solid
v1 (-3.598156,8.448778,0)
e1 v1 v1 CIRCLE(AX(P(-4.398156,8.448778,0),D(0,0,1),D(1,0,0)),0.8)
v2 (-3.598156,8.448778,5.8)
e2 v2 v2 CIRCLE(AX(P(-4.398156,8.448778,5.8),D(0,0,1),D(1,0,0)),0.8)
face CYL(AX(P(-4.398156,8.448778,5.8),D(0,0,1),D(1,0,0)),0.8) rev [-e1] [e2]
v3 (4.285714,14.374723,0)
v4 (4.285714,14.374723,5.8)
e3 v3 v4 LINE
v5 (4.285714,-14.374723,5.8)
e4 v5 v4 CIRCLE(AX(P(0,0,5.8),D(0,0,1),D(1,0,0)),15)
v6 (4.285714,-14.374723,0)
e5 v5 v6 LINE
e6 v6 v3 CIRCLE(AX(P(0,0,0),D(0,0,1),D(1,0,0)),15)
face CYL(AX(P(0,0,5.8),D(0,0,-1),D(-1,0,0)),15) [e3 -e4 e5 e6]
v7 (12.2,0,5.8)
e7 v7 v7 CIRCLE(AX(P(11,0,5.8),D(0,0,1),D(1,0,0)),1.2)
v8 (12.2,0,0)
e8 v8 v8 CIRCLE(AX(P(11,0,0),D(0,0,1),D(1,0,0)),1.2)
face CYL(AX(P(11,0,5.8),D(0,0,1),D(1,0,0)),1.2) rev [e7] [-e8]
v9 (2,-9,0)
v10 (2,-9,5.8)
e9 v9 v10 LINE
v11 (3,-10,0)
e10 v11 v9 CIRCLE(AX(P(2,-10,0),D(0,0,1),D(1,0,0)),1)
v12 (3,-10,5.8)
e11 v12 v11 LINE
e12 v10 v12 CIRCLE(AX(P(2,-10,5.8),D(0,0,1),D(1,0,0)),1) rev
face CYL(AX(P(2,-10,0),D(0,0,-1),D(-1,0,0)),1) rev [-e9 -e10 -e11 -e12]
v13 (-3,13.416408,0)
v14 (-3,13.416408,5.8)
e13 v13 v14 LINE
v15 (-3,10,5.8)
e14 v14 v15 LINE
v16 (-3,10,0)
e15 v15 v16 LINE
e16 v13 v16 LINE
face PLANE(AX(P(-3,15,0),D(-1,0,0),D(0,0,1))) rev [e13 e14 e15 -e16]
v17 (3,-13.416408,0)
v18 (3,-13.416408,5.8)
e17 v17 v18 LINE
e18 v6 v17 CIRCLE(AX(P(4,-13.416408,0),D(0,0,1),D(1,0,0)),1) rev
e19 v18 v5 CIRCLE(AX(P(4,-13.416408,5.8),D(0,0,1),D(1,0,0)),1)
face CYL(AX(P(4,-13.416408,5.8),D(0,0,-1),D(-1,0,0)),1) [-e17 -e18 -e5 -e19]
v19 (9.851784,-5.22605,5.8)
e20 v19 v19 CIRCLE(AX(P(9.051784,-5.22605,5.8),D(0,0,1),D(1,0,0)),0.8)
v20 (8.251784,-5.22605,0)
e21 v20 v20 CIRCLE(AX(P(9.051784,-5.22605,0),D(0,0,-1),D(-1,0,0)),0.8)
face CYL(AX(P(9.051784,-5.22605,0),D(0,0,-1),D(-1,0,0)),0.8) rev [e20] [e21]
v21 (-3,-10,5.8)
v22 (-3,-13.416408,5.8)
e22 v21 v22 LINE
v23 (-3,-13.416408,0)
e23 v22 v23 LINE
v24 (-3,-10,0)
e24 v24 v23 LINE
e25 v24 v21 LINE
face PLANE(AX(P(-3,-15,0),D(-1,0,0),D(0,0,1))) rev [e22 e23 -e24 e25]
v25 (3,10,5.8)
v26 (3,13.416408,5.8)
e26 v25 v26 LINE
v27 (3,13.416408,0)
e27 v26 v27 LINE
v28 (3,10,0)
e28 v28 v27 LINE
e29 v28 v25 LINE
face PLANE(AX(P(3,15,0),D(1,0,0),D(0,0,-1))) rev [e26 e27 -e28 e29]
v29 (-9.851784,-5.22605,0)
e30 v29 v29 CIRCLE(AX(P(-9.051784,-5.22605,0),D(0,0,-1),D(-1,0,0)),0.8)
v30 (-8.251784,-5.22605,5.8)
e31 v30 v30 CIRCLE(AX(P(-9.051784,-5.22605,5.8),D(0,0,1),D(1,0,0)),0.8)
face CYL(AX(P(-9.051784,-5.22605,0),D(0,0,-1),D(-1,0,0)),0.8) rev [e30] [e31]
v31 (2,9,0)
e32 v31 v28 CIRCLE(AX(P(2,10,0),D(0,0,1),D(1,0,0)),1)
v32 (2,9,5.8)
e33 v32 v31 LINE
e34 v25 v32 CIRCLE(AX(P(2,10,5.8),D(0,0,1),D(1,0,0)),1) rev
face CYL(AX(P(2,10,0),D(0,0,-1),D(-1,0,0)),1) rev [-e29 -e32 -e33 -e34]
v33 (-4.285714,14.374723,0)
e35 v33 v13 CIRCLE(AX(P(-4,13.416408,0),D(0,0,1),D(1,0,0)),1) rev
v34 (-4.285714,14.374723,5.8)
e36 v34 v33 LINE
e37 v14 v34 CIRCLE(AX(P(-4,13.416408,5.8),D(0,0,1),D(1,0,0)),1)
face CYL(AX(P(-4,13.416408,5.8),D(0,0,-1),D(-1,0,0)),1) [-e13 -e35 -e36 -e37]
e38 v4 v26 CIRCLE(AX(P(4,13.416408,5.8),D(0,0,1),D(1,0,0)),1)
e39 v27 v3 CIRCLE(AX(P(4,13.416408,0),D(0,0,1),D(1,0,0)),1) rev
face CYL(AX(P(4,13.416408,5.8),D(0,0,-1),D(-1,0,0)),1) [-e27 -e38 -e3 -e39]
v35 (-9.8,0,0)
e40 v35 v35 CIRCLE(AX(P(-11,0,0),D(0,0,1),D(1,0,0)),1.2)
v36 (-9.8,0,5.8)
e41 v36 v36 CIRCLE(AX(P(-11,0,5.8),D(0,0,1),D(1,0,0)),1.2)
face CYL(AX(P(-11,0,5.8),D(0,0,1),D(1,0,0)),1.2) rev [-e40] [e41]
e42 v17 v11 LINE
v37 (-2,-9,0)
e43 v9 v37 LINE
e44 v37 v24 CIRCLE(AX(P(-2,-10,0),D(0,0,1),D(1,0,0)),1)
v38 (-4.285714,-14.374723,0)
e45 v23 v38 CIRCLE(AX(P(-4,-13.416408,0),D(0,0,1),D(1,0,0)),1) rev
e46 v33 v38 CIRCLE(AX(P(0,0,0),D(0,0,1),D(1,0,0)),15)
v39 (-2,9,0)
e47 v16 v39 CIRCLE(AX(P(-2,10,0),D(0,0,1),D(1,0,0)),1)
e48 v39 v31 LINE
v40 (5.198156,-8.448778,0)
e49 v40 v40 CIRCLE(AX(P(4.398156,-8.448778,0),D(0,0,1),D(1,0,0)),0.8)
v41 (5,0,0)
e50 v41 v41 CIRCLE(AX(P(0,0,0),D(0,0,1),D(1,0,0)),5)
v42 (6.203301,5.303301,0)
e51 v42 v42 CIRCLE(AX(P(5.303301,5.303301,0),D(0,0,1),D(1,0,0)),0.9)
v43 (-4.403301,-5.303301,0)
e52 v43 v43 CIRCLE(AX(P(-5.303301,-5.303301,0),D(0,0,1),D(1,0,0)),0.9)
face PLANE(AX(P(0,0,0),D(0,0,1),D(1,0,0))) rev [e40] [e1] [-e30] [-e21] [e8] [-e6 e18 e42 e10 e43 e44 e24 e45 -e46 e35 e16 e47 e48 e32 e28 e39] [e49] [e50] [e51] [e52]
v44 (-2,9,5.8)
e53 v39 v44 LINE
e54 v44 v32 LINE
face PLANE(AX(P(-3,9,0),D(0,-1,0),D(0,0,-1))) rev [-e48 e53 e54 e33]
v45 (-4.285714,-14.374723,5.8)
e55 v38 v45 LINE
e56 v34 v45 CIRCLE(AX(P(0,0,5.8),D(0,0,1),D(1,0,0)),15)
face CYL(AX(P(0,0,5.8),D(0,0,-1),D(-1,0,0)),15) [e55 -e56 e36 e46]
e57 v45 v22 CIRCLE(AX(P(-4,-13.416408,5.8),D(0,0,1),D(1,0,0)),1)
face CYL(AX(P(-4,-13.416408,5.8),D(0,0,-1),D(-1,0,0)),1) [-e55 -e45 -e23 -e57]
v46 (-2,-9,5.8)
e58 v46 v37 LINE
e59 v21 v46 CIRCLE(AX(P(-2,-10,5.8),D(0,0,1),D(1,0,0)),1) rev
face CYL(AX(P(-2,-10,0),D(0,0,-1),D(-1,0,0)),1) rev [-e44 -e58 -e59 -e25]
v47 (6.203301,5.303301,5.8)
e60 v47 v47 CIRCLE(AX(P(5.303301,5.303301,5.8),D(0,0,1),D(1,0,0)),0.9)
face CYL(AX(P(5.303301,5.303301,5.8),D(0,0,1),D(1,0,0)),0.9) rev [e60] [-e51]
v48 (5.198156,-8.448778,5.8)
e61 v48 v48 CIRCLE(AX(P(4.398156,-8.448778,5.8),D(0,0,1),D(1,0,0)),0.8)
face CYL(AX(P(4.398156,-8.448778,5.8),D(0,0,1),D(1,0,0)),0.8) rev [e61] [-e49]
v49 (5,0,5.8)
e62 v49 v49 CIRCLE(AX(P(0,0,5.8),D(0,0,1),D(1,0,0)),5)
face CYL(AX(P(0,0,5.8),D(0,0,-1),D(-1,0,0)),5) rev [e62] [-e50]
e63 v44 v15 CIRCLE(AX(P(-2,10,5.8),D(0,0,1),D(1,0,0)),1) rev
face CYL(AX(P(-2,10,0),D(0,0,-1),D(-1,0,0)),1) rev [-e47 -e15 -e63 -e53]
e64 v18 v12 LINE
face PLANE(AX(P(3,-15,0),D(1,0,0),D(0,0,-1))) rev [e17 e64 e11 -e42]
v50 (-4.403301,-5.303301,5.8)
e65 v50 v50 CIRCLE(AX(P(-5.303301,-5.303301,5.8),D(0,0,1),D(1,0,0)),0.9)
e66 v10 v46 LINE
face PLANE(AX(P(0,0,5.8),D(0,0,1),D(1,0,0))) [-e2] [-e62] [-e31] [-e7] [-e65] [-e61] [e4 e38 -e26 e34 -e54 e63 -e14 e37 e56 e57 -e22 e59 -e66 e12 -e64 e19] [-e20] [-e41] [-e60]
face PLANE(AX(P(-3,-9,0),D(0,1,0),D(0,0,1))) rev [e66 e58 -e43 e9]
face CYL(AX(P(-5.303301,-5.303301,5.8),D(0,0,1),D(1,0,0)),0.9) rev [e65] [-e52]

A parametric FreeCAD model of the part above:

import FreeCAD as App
import Part
import Sketcher
Q = App.Units.Quantity


def edges_at(feature, points):
    """Names of the edges that pass closest to the given points."""
    edges = feature.Shape.Edges
    near = lambda p: min(range(len(edges)), key=lambda i: edges[i].distToShape(Part.Vertex(*p))[0])
    return sorted({f"Edge{near(p) + 1}" for p in points})


def add_polygon(sketch, points):
    """Adds a closed chain of lines whose ends are joined by coincident constraints."""
    first, n = sketch.GeometryCount, len(points)
    for a, b in zip(points, points[1:] + points[:1]):
        sketch.addGeometry(Part.LineSegment(App.Vector(*a, 0), App.Vector(*b, 0)), False)
    for i in range(n):
        sketch.addConstraint(Sketcher.Constraint("Coincident", first + i, 2, first + (i + 1) % n, 1))

doc = App.newDocument("Part")
body = doc.addObject("PartDesign::Body", "Body")

sketch1 = body.newObject("Sketcher::SketchObject", "Sketch")
sketch1.AttachmentSupport = (doc.getObject("XY_Plane"), [""])
sketch1.MapMode = "FlatFace"
sketch1.addGeometry(Part.Circle(App.Vector(0, 0, 0), App.Vector(0, 0, 1), 15), False)
sketch1.addGeometry(Part.Circle(App.Vector(0, 0, 0), App.Vector(0, 0, 1), 5), False)
sketch1.addConstraint(Sketcher.Constraint("Coincident", 0, 3, -1, 1))
sketch1.addConstraint(Sketcher.Constraint("Coincident", 1, 3, -1, 1))
sketch1.addConstraint(Sketcher.Constraint("Diameter", 0, Q("30 mm")))
sketch1.addConstraint(Sketcher.Constraint("Diameter", 1, Q("10 mm")))
pad1 = body.newObject("PartDesign::Pad", "Pad")
pad1.Profile = sketch1
pad1.Length = 5.8

sketch2 = body.newObject("Sketcher::SketchObject", "Sketch001")
sketch2.AttachmentSupport = (doc.getObject("XY_Plane"), [""])
sketch2.MapMode = "FlatFace"
sketch2.AttachmentOffset = App.Placement(App.Vector(0, 0, 5.8), App.Rotation())
sketch2.addGeometry(Part.Circle(App.Vector(-11, 0, 0), App.Vector(0, 0, 1), 1.2), False)
sketch2.addGeometry(Part.Circle(App.Vector(11, 0, 0), App.Vector(0, 0, 1), 1.2), False)
sketch2.addConstraint(Sketcher.Constraint("Equal", 0, 1))
sketch2.addConstraint(Sketcher.Constraint("Symmetric", 0, 3, 1, 3, -1, 1))
sketch2.addConstraint(Sketcher.Constraint("PointOnObject", 0, 3, -1))
sketch2.addConstraint(Sketcher.Constraint("Diameter", 0, Q("2.4 mm")))
sketch2.addConstraint(Sketcher.Constraint("DistanceX", 0, 3, -1, 1, Q("11 mm")))
doc.recompute()
hole = body.newObject("PartDesign::Hole", "Hole")
hole.Profile = sketch2
hole.ThreadType = "None"
hole.Diameter = 2.4
hole.DepthType = "Dimension"
hole.Depth = 25.4
hole.DrillPoint = "Angled"
hole.DrillPointAngle = 118

sketch3 = body.newObject("Sketcher::SketchObject", "Sketch002")
sketch3.AttachmentSupport = (doc.getObject("XY_Plane"), [""])
sketch3.MapMode = "FlatFace"
sketch3.AttachmentOffset = App.Placement(App.Vector(0, 0, 5.8), App.Rotation())
sketch3.addGeometry(Part.Circle(App.Vector(5.3, 5.3, 0), App.Vector(0, 0, 1), 0.9), False)
sketch3.addGeometry(Part.Circle(App.Vector(-5.3, -5.3, 0), App.Vector(0, 0, 1), 0.9), False)
sketch3.addConstraint(Sketcher.Constraint("Equal", 0, 1))
sketch3.addConstraint(Sketcher.Constraint("Symmetric", 0, 3, 1, 3, -1, 1))
sketch3.addConstraint(Sketcher.Constraint("Diameter", 0, Q("1.8 mm")))
sketch3.addConstraint(Sketcher.Constraint("DistanceX", -1, 1, 0, 3, Q("5.303301 mm")))
sketch3.addConstraint(Sketcher.Constraint("DistanceY", -1, 1, 0, 3, Q("5.303301 mm")))
doc.recompute()
hole2 = body.newObject("PartDesign::Hole", "Hole001")
hole2.Profile = sketch3
hole2.ThreadType = "None"
hole2.Diameter = 1.8
hole2.DepthType = "Dimension"
hole2.Depth = 25.4
hole2.DrillPoint = "Angled"
hole2.DrillPointAngle = 118

sketch4 = body.newObject("Sketcher::SketchObject", "Sketch003")
sketch4.AttachmentSupport = (doc.getObject("XY_Plane"), [""])
sketch4.MapMode = "FlatFace"
sketch4.AttachmentOffset = App.Placement(App.Vector(0, 0, 5.8), App.Rotation())
add_polygon(sketch4, [(-3, -9), (-3, -15), (3, -15), (3, -9)])
add_polygon(sketch4, [(-3, 15), (-3, 9), (3, 9), (3, 15)])
sketch4.addConstraint(Sketcher.Constraint("Vertical", 0))
sketch4.addConstraint(Sketcher.Constraint("Horizontal", 1))
sketch4.addConstraint(Sketcher.Constraint("Vertical", 2))
sketch4.addConstraint(Sketcher.Constraint("Horizontal", 3))
sketch4.addConstraint(Sketcher.Constraint("Vertical", 4))
sketch4.addConstraint(Sketcher.Constraint("Horizontal", 5))
sketch4.addConstraint(Sketcher.Constraint("Vertical", 6))
sketch4.addConstraint(Sketcher.Constraint("Horizontal", 7))
sketch4.addConstraint(Sketcher.Constraint("Symmetric", 2, 2, 4, 2, -1, 1))
sketch4.addConstraint(Sketcher.Constraint("Symmetric", 0, 2, 6, 2, -1, 1))
sketch4.addConstraint(Sketcher.Constraint("Vertical", 3, 2, 4, 2))
sketch4.addConstraint(Sketcher.Constraint("Equal", 7, 0))
sketch4.addConstraint(Sketcher.Constraint("DistanceX", 1, 1, 1, 2, Q("6 mm")))
sketch4.addConstraint(Sketcher.Constraint("DistanceY", 0, 2, -1, 1, Q("15 mm")))
pocket1 = body.newObject("PartDesign::Pocket", "Pocket")
pocket1.Profile = sketch4
pocket1.Type = "ThroughAll"
doc.recompute()

fillet = body.newObject("PartDesign::Fillet", "Fillet")
fillet.Base = (pocket1, edges_at(pocket1, [
    (-3, -14.697, 2.9),
    (3, -14.697, 2.9),
    (3, -9, 2.9),
    (-3, -9, 2.9),
    (-3, 14.697, 2.9),
    (3, 14.697, 2.9),
    (-3, 9, 2.9),
    (3, 9, 2.9),
]))
fillet.Radius = 1

sketch5 = body.newObject("Sketcher::SketchObject", "Sketch004")
sketch5.AttachmentSupport = (doc.getObject("XY_Plane"), [""])
sketch5.MapMode = "FlatFace"
sketch5.AttachmentOffset = App.Placement(App.Vector(0, 0, 5.8), App.Rotation())
sketch5.addGeometry(Part.Circle(App.Vector(-4.4, 8.4, 0), App.Vector(0, 0, 1), 0.8), False)
sketch5.addGeometry(Part.Circle(App.Vector(4.4, -8.4, 0), App.Vector(0, 0, 1), 0.8), False)
sketch5.addConstraint(Sketcher.Constraint("Equal", 0, 1))
sketch5.addConstraint(Sketcher.Constraint("Symmetric", 0, 3, 1, 3, -1, 1))
sketch5.addConstraint(Sketcher.Constraint("Diameter", 0, Q("1.6 mm")))
sketch5.addConstraint(Sketcher.Constraint("DistanceY", -1, 1, 0, 3, Q("8.448778 mm")))
sketch5.addConstraint(Sketcher.Constraint("DistanceX", 0, 3, 1, 3, Q("8.796311 mm")))
doc.recompute()
hole3 = body.newObject("PartDesign::Hole", "Hole002")
hole3.Profile = sketch5
hole3.ThreadType = "None"
hole3.Diameter = 1.6
hole3.DepthType = "Dimension"
hole3.Depth = 5.99948
hole3.DrillPoint = "Angled"
hole3.DrillPointAngle = 118

sketch6 = body.newObject("Sketcher::SketchObject", "Sketch005")
sketch6.AttachmentSupport = (doc.getObject("XY_Plane"), [""])
sketch6.MapMode = "FlatFace"
sketch6.addGeometry(Part.Circle(App.Vector(-9.1, -5.2, 0), App.Vector(0, 0, 1), 0.8), False)
sketch6.addGeometry(Part.Circle(App.Vector(9.1, -5.2, 0), App.Vector(0, 0, 1), 0.8), False)
sketch6.addGeometry(Part.Circle(App.Vector(0, 10.5, 0), App.Vector(0, 0, 1), 0.8), False)
sketch6.addConstraint(Sketcher.Constraint("Equal", 0, 1))
sketch6.addConstraint(Sketcher.Constraint("Equal", 1, 2))
sketch6.addConstraint(Sketcher.Constraint("Symmetric", 0, 3, 1, 3, -2))
sketch6.addConstraint(Sketcher.Constraint("PointOnObject", 2, 3, -2))
sketch6.addConstraint(Sketcher.Constraint("Diameter", 0, Q("1.6 mm")))
sketch6.addConstraint(Sketcher.Constraint("DistanceY", -1, 1, 2, 3, Q("10.4521 mm")))
sketch6.addConstraint(Sketcher.Constraint("DistanceY", 0, 3, -1, 1, Q("5.22605 mm")))
sketch6.addConstraint(Sketcher.Constraint("DistanceX", 0, 3, 1, 3, Q("18.103568 mm")))
doc.recompute()
hole4 = body.newObject("PartDesign::Hole", "Hole003")
hole4.Profile = sketch6
hole4.ThreadType = "None"
hole4.Diameter = 1.6
hole4.DepthType = "Dimension"
hole4.Depth = 5.99948
hole4.DrillPoint = "Angled"
hole4.DrillPointAngle = 118
hole4.Reversed = True

doc.recompute()
